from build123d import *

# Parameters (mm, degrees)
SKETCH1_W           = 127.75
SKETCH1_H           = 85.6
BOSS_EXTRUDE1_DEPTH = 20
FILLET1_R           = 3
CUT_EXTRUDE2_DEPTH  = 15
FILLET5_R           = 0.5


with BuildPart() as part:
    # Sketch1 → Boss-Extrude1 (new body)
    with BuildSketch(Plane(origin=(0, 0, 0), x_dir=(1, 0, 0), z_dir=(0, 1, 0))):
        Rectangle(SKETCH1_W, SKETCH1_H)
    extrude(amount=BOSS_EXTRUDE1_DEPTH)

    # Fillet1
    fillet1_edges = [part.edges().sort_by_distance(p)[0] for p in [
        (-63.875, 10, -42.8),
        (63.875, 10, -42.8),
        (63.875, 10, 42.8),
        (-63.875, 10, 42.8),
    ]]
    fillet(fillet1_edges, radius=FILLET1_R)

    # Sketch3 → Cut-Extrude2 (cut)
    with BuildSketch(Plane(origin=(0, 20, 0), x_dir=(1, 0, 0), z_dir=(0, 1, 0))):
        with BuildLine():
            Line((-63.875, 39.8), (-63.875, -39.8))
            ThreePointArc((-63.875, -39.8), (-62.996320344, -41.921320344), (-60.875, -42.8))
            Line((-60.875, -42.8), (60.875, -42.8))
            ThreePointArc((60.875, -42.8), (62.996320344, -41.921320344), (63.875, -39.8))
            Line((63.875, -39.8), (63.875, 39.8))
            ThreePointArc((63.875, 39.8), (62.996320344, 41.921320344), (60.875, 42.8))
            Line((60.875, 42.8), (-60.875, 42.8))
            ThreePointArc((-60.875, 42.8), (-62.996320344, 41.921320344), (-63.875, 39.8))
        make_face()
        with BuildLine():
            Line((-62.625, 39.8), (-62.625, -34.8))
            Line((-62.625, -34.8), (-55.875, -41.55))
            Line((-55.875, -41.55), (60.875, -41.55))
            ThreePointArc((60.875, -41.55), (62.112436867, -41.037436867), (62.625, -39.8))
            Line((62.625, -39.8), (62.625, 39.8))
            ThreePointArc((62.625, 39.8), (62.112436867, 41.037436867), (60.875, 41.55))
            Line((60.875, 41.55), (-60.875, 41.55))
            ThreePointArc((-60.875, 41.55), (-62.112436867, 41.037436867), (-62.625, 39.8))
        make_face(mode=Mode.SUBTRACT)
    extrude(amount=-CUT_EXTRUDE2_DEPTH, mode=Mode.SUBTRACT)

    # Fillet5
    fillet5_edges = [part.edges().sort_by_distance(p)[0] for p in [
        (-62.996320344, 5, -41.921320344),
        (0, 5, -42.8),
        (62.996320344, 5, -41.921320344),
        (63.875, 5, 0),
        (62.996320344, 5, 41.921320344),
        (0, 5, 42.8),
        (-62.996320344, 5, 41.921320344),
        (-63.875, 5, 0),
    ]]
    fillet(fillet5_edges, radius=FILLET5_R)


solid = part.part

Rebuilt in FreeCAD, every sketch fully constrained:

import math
import FreeCAD as App
import Part
import Sketcher
Q = App.Units.Quantity


def edges_at(feature, points):
    """Names of the edges that pass closest to the given points."""
    edges = feature.Shape.Edges
    near = lambda p: min(range(len(edges)), key=lambda i: edges[i].distToShape(Part.Vertex(*p))[0])
    return sorted({f"Edge{near(p) + 1}" for p in points})


def add_polygon(sketch, points):
    """Adds a closed chain of lines whose ends are joined by coincident constraints."""
    first, n = sketch.GeometryCount, len(points)
    for a, b in zip(points, points[1:] + points[:1]):
        sketch.addGeometry(Part.LineSegment(App.Vector(*a, 0), App.Vector(*b, 0)), False)
    for i in range(n):
        sketch.addConstraint(Sketcher.Constraint("Coincident", first + i, 2, first + (i + 1) % n, 1))

doc = App.newDocument("Part")
params = doc.addObject("Spreadsheet::Sheet", "Params")
for row, (alias, value) in enumerate([
    ("sketch1_height", "85.6 mm"),
    ("sketch1_width", "127.75 mm"),
    ("pad1_length", "20 mm"),
    ("fillet_radius", "3 mm"),
    ("sketch2_radius", "3 mm"),
    ("sketch2_radius2", "1.75 mm"),
    ("sketch2_height", "79.6 mm"),
    ("sketch2_height2", "74.6 mm"),
    ("sketch2_width", "121.75 mm"),
    ("pocket1_length", "15 mm"),
    ("fillet2_radius", "0.5 mm"),
], start=1):
    params.set(f"A{row}", alias)
    params.set(f"B{row}", "=" + value)
    params.setAlias(f"B{row}", alias)

body = doc.addObject("PartDesign::Body", "Body")

# Sketch on XZ plane
sketch1 = body.newObject("Sketcher::SketchObject", "Sketch")
sketch1.AttachmentSupport = (doc.getObject("XZ_Plane"), [""])
sketch1.MapMode = "FlatFace"
add_polygon(sketch1, [(-63.875, -42.8), (-63.875, 42.8), (63.875, 42.8), (63.875, -42.8)])  # lines 0-3
sketch1.addConstraint([
    Sketcher.Constraint("Vertical", 0),
    Sketcher.Constraint("Horizontal", 1),
    Sketcher.Constraint("Vertical", 2),
    Sketcher.Constraint("Horizontal", 3),
    Sketcher.Constraint("Symmetric", 0, 2, 2, 2, -1, 1),
    Sketcher.Constraint("DistanceY", 0, 1, 0, 2, Q("85.6 mm")),
    Sketcher.Constraint("DistanceX", 1, 1, 1, 2, Q("127.75 mm")),
])
sketch1.setExpression("Constraints[9]", "Params.sketch1_height")
sketch1.setExpression("Constraints[10]", "Params.sketch1_width")
pad1 = body.newObject("PartDesign::Pad", "Pad")
pad1.Profile = sketch1
pad1.setExpression("Length", "Params.pad1_length")
pad1.Reversed = True
doc.recompute()

fillet = body.newObject("PartDesign::Fillet", "Fillet")
fillet.Base = (pad1, edges_at(pad1, [
    (-63.875, 10, -42.8),
    (63.875, 10, -42.8),
    (63.875, 10, 42.8),
    (-63.875, 10, 42.8),
]))
fillet.setExpression("Radius", "Params.fillet_radius")

# Sketch on XZ plane
sketch2 = body.newObject("Sketcher::SketchObject", "Sketch001")
sketch2.AttachmentSupport = (doc.getObject("XZ_Plane"), [""])
sketch2.MapMode = "FlatFace"
sketch2.AttachmentOffset = App.Placement(App.Vector(0, 0, -20), App.Rotation())
sketch2.addGeometry([
    Part.LineSegment(App.Vector(-63.875, -39.8, 0), App.Vector(-63.875, 39.8, 0)),  # 0
    Part.ArcOfCircle(Part.Circle(App.Vector(-60.875, 39.8, 0), App.Vector(0, 0, 1), 3), math.radians(90), math.radians(180)),  # 1
    Part.LineSegment(App.Vector(-60.875, 42.8, 0), App.Vector(60.875, 42.8, 0)),  # 2
    Part.ArcOfCircle(Part.Circle(App.Vector(60.875, 39.8, 0), App.Vector(0, 0, 1), 3), math.radians(0), math.radians(90)),  # 3
    Part.LineSegment(App.Vector(63.875, 39.8, 0), App.Vector(63.875, -39.8, 0)),  # 4
    Part.ArcOfCircle(Part.Circle(App.Vector(60.875, -39.8, 0), App.Vector(0, 0, 1), 3), math.radians(-90), math.radians(0)),  # 5
    Part.LineSegment(App.Vector(60.875, -42.8, 0), App.Vector(-60.875, -42.8, 0)),  # 6
    Part.ArcOfCircle(Part.Circle(App.Vector(-60.875, -39.8, 0), App.Vector(0, 0, 1), 3), math.radians(180), math.radians(270)),  # 7
    Part.LineSegment(App.Vector(-62.625, 34.8, 0), App.Vector(-62.625, -39.8, 0)),  # 8
    Part.ArcOfCircle(Part.Circle(App.Vector(-60.875, -39.8, 0), App.Vector(0, 0, 1), 1.75), math.radians(180), math.radians(270)),  # 9
    Part.LineSegment(App.Vector(-60.875, -41.55, 0), App.Vector(60.875, -41.55, 0)),  # 10
    Part.ArcOfCircle(Part.Circle(App.Vector(60.875, -39.8, 0), App.Vector(0, 0, 1), 1.75), math.radians(-90), math.radians(0)),  # 11
    Part.LineSegment(App.Vector(62.625, -39.8, 0), App.Vector(62.625, 39.8, 0)),  # 12
    Part.ArcOfCircle(Part.Circle(App.Vector(60.875, 39.8, 0), App.Vector(0, 0, 1), 1.75), math.radians(0), math.radians(90)),  # 13
    Part.LineSegment(App.Vector(60.875, 41.55, 0), App.Vector(-55.875, 41.55, 0)),  # 14
    Part.LineSegment(App.Vector(-55.875, 41.55, 0), App.Vector(-62.625, 34.8, 0)),  # 15
], False)
sketch2.addConstraint([
    Sketcher.Constraint("Tangent", 0, 2, 1, 2),
    Sketcher.Constraint("Tangent", 1, 1, 2, 1),
    Sketcher.Constraint("Tangent", 2, 2, 3, 2),
    Sketcher.Constraint("Tangent", 3, 1, 4, 1),
    Sketcher.Constraint("Tangent", 4, 2, 5, 2),
    Sketcher.Constraint("Tangent", 5, 1, 6, 1),
    Sketcher.Constraint("Tangent", 6, 2, 7, 2),
    Sketcher.Constraint("Tangent", 7, 1, 0, 1),
    Sketcher.Constraint("Tangent", 8, 2, 9, 1),
    Sketcher.Constraint("Tangent", 9, 2, 10, 1),
    Sketcher.Constraint("Tangent", 10, 2, 11, 1),
    Sketcher.Constraint("Tangent", 11, 2, 12, 1),
    Sketcher.Constraint("Tangent", 12, 2, 13, 1),
    Sketcher.Constraint("Tangent", 13, 2, 14, 1),
    Sketcher.Constraint("Coincident", 14, 2, 15, 1),
    Sketcher.Constraint("Coincident", 15, 2, 8, 1),
    Sketcher.Constraint("Vertical", 0),
    Sketcher.Constraint("Horizontal", 2),
    Sketcher.Constraint("Vertical", 4),
    Sketcher.Constraint("Horizontal", 6),
    Sketcher.Constraint("Vertical", 8),
    Sketcher.Constraint("Horizontal", 10),
    Sketcher.Constraint("Vertical", 12),
    Sketcher.Constraint("Horizontal", 14),
    Sketcher.Constraint("Coincident", 9, 3, 7, 3),
    Sketcher.Constraint("Coincident", 11, 3, 5, 3),
    Sketcher.Constraint("Coincident", 13, 3, 3, 3),
    Sketcher.Constraint("Equal", 1, 3),
    Sketcher.Constraint("Equal", 3, 5),
    Sketcher.Constraint("Equal", 5, 7),
    Sketcher.Constraint("Symmetric", 1, 3, 5, 3, -1, 1),
    Sketcher.Constraint("Radius", 1, Q("3 mm")),
    Sketcher.Constraint("Angle", 15, Q("-135 deg")),
    Sketcher.Constraint("Radius", 9, Q("1.75 mm")),
    Sketcher.Constraint("DistanceY", 0, 1, 0, 2, Q("79.6 mm")),
    Sketcher.Constraint("DistanceY", 8, 2, 8, 1, Q("74.6 mm")),
    Sketcher.Constraint("DistanceX", 2, 1, 2, 2, Q("121.75 mm")),
])
sketch2.setExpression("Constraints[31]", "Params.sketch2_radius")
sketch2.setExpression("Constraints[33]", "Params.sketch2_radius2")
sketch2.setExpression("Constraints[34]", "Params.sketch2_height")
sketch2.setExpression("Constraints[35]", "Params.sketch2_height2")
sketch2.setExpression("Constraints[36]", "Params.sketch2_width")
pocket1 = body.newObject("PartDesign::Pocket", "Pocket")
pocket1.Profile = sketch2
pocket1.setExpression("Length", "Params.pocket1_length")
pocket1.Reversed = True
doc.recompute()

fillet2 = body.newObject("PartDesign::Fillet", "Fillet001")
fillet2.Base = (pocket1, edges_at(pocket1, [
    (-62.996, 5, -41.921),
    (0, 5, -42.8),
    (62.996, 5, -41.921),
    (63.875, 5, 0),
    (62.996, 5, 41.921),
    (0, 5, 42.8),
    (-62.996, 5, 41.921),
    (-63.875, 5, 0),
]))
fillet2.setExpression("Radius", "Params.fillet2_radius")

doc.recompute()
